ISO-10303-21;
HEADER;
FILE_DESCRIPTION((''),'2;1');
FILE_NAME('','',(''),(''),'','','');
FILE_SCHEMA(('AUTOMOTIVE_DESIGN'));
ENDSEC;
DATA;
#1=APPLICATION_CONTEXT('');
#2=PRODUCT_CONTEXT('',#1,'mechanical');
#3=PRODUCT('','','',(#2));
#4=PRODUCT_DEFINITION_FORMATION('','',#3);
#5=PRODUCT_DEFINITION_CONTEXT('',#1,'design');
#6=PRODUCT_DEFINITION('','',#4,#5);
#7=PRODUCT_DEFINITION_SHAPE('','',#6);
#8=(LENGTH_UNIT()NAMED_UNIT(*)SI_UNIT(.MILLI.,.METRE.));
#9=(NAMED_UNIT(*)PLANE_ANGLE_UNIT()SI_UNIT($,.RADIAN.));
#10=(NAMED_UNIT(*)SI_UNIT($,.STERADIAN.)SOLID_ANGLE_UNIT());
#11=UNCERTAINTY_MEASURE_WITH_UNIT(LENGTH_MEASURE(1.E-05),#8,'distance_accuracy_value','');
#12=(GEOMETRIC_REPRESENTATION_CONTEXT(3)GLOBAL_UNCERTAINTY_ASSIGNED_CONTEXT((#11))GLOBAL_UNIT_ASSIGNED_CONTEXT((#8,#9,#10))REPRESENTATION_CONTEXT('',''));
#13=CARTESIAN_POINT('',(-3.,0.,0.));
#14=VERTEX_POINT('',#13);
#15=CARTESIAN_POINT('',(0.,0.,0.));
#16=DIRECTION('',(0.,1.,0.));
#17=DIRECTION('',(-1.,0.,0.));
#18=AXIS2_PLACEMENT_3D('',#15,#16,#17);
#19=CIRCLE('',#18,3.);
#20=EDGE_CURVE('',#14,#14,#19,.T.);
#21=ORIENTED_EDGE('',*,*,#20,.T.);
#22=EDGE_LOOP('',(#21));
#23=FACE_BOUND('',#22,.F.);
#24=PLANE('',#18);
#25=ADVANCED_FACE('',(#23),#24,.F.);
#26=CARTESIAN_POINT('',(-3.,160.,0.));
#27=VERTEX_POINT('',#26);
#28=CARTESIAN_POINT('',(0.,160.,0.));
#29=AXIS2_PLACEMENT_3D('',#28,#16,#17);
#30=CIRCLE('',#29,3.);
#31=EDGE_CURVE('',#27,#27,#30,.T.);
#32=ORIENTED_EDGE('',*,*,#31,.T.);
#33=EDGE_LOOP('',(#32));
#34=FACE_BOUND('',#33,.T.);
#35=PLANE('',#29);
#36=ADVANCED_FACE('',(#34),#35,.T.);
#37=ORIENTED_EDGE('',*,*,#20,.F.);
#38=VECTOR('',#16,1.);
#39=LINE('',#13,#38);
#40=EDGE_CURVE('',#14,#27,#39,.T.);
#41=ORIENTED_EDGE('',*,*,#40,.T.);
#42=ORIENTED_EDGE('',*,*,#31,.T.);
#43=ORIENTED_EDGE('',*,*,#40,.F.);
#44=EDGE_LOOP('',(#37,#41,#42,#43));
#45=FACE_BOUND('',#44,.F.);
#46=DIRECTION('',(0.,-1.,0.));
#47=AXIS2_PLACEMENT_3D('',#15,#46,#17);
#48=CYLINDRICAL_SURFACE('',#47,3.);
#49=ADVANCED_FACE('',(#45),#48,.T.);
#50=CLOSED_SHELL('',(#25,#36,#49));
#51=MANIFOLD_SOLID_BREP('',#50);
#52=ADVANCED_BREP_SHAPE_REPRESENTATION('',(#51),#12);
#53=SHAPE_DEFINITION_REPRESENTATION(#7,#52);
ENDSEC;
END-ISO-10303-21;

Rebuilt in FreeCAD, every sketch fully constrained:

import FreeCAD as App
import Part
import Sketcher
from FreeCAD import Vector
Q = App.Units.Quantity

doc = App.newDocument("Part")
body = doc.addObject("PartDesign::Body", "Body")

sketch1 = body.newObject("Sketcher::SketchObject", "Sketch")
sketch1.AttachmentSupport = (doc.getObject("XZ_Plane"), [""])
sketch1.MapMode = "FlatFace"
sketch1.addGeometry(Part.Circle(Vector(0, 0, 0), Vector(0, 0, 1), 3), False)
sketch1.addConstraint([
    Sketcher.Constraint("Coincident", 0, 3, -1, 1),
    Sketcher.Constraint("Diameter", 0, Q("6 mm")),
])
pad1 = body.newObject("PartDesign::Pad", "Pad")
pad1.Profile = sketch1
pad1.Length = 160
pad1.Reversed = True

doc.recompute()
